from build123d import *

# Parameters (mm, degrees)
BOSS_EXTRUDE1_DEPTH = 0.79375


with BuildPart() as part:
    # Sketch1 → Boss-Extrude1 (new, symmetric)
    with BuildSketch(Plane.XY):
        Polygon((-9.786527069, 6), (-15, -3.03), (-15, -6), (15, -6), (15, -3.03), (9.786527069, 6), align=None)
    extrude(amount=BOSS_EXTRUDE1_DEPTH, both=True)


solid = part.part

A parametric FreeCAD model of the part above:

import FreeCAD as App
import Part
import Sketcher
Q = App.Units.Quantity

doc = App.newDocument("Part")
body = doc.addObject("PartDesign::Body", "Body")

sketch1 = body.newObject("Sketcher::SketchObject", "Sketch")
sketch1.AttachmentSupport = (doc.getObject("XY_Plane"), [""])
sketch1.MapMode = "FlatFace"
sketch1.addGeometry([
    Part.LineSegment(App.Vector(-9.8, 6, 0), App.Vector(-15, -3, 0)),
    Part.LineSegment(App.Vector(-15, -3, 0), App.Vector(-15, -6, 0)),
    Part.LineSegment(App.Vector(-15, -6, 0), App.Vector(15, -6, 0)),
    Part.LineSegment(App.Vector(15, -6, 0), App.Vector(15, -3, 0)),
    Part.LineSegment(App.Vector(15, -3, 0), App.Vector(9.8, 6, 0)),
    Part.LineSegment(App.Vector(9.8, 6, 0), App.Vector(-9.8, 6, 0)),
], False)
sketch1.addConstraint([
    Sketcher.Constraint("Coincident", 0, 2, 1, 1),
    Sketcher.Constraint("Coincident", 1, 2, 2, 1),
    Sketcher.Constraint("Coincident", 2, 2, 3, 1),
    Sketcher.Constraint("Coincident", 3, 2, 4, 1),
    Sketcher.Constraint("Coincident", 4, 2, 5, 1),
    Sketcher.Constraint("Coincident", 5, 2, 0, 1),
    Sketcher.Constraint("Vertical", 1),
    Sketcher.Constraint("Horizontal", 2),
    Sketcher.Constraint("Vertical", 3),
    Sketcher.Constraint("Horizontal", 5),
    Sketcher.Constraint("Symmetric", 0, 2, 3, 2, -2),
    Sketcher.Constraint("Equal", 0, 4),
    Sketcher.Constraint("DistanceX", 2, 1, 2, 2, 30.0),
    Sketcher.Constraint("Angle", 0, Q("-120 deg")),
    Sketcher.Constraint("DistanceY", 1, 2, -1, 1, 6.0),
    Sketcher.Constraint("DistanceY", -1, 1, 4, 2, 6.0),
    Sketcher.Constraint("DistanceY", 1, 2, 1, 1, 2.97),
])
pad1 = body.newObject("PartDesign::Pad", "Pad")
pad1.Profile = sketch1
pad1.Length = 1.5875
pad1.Midplane = True

doc.recompute()
